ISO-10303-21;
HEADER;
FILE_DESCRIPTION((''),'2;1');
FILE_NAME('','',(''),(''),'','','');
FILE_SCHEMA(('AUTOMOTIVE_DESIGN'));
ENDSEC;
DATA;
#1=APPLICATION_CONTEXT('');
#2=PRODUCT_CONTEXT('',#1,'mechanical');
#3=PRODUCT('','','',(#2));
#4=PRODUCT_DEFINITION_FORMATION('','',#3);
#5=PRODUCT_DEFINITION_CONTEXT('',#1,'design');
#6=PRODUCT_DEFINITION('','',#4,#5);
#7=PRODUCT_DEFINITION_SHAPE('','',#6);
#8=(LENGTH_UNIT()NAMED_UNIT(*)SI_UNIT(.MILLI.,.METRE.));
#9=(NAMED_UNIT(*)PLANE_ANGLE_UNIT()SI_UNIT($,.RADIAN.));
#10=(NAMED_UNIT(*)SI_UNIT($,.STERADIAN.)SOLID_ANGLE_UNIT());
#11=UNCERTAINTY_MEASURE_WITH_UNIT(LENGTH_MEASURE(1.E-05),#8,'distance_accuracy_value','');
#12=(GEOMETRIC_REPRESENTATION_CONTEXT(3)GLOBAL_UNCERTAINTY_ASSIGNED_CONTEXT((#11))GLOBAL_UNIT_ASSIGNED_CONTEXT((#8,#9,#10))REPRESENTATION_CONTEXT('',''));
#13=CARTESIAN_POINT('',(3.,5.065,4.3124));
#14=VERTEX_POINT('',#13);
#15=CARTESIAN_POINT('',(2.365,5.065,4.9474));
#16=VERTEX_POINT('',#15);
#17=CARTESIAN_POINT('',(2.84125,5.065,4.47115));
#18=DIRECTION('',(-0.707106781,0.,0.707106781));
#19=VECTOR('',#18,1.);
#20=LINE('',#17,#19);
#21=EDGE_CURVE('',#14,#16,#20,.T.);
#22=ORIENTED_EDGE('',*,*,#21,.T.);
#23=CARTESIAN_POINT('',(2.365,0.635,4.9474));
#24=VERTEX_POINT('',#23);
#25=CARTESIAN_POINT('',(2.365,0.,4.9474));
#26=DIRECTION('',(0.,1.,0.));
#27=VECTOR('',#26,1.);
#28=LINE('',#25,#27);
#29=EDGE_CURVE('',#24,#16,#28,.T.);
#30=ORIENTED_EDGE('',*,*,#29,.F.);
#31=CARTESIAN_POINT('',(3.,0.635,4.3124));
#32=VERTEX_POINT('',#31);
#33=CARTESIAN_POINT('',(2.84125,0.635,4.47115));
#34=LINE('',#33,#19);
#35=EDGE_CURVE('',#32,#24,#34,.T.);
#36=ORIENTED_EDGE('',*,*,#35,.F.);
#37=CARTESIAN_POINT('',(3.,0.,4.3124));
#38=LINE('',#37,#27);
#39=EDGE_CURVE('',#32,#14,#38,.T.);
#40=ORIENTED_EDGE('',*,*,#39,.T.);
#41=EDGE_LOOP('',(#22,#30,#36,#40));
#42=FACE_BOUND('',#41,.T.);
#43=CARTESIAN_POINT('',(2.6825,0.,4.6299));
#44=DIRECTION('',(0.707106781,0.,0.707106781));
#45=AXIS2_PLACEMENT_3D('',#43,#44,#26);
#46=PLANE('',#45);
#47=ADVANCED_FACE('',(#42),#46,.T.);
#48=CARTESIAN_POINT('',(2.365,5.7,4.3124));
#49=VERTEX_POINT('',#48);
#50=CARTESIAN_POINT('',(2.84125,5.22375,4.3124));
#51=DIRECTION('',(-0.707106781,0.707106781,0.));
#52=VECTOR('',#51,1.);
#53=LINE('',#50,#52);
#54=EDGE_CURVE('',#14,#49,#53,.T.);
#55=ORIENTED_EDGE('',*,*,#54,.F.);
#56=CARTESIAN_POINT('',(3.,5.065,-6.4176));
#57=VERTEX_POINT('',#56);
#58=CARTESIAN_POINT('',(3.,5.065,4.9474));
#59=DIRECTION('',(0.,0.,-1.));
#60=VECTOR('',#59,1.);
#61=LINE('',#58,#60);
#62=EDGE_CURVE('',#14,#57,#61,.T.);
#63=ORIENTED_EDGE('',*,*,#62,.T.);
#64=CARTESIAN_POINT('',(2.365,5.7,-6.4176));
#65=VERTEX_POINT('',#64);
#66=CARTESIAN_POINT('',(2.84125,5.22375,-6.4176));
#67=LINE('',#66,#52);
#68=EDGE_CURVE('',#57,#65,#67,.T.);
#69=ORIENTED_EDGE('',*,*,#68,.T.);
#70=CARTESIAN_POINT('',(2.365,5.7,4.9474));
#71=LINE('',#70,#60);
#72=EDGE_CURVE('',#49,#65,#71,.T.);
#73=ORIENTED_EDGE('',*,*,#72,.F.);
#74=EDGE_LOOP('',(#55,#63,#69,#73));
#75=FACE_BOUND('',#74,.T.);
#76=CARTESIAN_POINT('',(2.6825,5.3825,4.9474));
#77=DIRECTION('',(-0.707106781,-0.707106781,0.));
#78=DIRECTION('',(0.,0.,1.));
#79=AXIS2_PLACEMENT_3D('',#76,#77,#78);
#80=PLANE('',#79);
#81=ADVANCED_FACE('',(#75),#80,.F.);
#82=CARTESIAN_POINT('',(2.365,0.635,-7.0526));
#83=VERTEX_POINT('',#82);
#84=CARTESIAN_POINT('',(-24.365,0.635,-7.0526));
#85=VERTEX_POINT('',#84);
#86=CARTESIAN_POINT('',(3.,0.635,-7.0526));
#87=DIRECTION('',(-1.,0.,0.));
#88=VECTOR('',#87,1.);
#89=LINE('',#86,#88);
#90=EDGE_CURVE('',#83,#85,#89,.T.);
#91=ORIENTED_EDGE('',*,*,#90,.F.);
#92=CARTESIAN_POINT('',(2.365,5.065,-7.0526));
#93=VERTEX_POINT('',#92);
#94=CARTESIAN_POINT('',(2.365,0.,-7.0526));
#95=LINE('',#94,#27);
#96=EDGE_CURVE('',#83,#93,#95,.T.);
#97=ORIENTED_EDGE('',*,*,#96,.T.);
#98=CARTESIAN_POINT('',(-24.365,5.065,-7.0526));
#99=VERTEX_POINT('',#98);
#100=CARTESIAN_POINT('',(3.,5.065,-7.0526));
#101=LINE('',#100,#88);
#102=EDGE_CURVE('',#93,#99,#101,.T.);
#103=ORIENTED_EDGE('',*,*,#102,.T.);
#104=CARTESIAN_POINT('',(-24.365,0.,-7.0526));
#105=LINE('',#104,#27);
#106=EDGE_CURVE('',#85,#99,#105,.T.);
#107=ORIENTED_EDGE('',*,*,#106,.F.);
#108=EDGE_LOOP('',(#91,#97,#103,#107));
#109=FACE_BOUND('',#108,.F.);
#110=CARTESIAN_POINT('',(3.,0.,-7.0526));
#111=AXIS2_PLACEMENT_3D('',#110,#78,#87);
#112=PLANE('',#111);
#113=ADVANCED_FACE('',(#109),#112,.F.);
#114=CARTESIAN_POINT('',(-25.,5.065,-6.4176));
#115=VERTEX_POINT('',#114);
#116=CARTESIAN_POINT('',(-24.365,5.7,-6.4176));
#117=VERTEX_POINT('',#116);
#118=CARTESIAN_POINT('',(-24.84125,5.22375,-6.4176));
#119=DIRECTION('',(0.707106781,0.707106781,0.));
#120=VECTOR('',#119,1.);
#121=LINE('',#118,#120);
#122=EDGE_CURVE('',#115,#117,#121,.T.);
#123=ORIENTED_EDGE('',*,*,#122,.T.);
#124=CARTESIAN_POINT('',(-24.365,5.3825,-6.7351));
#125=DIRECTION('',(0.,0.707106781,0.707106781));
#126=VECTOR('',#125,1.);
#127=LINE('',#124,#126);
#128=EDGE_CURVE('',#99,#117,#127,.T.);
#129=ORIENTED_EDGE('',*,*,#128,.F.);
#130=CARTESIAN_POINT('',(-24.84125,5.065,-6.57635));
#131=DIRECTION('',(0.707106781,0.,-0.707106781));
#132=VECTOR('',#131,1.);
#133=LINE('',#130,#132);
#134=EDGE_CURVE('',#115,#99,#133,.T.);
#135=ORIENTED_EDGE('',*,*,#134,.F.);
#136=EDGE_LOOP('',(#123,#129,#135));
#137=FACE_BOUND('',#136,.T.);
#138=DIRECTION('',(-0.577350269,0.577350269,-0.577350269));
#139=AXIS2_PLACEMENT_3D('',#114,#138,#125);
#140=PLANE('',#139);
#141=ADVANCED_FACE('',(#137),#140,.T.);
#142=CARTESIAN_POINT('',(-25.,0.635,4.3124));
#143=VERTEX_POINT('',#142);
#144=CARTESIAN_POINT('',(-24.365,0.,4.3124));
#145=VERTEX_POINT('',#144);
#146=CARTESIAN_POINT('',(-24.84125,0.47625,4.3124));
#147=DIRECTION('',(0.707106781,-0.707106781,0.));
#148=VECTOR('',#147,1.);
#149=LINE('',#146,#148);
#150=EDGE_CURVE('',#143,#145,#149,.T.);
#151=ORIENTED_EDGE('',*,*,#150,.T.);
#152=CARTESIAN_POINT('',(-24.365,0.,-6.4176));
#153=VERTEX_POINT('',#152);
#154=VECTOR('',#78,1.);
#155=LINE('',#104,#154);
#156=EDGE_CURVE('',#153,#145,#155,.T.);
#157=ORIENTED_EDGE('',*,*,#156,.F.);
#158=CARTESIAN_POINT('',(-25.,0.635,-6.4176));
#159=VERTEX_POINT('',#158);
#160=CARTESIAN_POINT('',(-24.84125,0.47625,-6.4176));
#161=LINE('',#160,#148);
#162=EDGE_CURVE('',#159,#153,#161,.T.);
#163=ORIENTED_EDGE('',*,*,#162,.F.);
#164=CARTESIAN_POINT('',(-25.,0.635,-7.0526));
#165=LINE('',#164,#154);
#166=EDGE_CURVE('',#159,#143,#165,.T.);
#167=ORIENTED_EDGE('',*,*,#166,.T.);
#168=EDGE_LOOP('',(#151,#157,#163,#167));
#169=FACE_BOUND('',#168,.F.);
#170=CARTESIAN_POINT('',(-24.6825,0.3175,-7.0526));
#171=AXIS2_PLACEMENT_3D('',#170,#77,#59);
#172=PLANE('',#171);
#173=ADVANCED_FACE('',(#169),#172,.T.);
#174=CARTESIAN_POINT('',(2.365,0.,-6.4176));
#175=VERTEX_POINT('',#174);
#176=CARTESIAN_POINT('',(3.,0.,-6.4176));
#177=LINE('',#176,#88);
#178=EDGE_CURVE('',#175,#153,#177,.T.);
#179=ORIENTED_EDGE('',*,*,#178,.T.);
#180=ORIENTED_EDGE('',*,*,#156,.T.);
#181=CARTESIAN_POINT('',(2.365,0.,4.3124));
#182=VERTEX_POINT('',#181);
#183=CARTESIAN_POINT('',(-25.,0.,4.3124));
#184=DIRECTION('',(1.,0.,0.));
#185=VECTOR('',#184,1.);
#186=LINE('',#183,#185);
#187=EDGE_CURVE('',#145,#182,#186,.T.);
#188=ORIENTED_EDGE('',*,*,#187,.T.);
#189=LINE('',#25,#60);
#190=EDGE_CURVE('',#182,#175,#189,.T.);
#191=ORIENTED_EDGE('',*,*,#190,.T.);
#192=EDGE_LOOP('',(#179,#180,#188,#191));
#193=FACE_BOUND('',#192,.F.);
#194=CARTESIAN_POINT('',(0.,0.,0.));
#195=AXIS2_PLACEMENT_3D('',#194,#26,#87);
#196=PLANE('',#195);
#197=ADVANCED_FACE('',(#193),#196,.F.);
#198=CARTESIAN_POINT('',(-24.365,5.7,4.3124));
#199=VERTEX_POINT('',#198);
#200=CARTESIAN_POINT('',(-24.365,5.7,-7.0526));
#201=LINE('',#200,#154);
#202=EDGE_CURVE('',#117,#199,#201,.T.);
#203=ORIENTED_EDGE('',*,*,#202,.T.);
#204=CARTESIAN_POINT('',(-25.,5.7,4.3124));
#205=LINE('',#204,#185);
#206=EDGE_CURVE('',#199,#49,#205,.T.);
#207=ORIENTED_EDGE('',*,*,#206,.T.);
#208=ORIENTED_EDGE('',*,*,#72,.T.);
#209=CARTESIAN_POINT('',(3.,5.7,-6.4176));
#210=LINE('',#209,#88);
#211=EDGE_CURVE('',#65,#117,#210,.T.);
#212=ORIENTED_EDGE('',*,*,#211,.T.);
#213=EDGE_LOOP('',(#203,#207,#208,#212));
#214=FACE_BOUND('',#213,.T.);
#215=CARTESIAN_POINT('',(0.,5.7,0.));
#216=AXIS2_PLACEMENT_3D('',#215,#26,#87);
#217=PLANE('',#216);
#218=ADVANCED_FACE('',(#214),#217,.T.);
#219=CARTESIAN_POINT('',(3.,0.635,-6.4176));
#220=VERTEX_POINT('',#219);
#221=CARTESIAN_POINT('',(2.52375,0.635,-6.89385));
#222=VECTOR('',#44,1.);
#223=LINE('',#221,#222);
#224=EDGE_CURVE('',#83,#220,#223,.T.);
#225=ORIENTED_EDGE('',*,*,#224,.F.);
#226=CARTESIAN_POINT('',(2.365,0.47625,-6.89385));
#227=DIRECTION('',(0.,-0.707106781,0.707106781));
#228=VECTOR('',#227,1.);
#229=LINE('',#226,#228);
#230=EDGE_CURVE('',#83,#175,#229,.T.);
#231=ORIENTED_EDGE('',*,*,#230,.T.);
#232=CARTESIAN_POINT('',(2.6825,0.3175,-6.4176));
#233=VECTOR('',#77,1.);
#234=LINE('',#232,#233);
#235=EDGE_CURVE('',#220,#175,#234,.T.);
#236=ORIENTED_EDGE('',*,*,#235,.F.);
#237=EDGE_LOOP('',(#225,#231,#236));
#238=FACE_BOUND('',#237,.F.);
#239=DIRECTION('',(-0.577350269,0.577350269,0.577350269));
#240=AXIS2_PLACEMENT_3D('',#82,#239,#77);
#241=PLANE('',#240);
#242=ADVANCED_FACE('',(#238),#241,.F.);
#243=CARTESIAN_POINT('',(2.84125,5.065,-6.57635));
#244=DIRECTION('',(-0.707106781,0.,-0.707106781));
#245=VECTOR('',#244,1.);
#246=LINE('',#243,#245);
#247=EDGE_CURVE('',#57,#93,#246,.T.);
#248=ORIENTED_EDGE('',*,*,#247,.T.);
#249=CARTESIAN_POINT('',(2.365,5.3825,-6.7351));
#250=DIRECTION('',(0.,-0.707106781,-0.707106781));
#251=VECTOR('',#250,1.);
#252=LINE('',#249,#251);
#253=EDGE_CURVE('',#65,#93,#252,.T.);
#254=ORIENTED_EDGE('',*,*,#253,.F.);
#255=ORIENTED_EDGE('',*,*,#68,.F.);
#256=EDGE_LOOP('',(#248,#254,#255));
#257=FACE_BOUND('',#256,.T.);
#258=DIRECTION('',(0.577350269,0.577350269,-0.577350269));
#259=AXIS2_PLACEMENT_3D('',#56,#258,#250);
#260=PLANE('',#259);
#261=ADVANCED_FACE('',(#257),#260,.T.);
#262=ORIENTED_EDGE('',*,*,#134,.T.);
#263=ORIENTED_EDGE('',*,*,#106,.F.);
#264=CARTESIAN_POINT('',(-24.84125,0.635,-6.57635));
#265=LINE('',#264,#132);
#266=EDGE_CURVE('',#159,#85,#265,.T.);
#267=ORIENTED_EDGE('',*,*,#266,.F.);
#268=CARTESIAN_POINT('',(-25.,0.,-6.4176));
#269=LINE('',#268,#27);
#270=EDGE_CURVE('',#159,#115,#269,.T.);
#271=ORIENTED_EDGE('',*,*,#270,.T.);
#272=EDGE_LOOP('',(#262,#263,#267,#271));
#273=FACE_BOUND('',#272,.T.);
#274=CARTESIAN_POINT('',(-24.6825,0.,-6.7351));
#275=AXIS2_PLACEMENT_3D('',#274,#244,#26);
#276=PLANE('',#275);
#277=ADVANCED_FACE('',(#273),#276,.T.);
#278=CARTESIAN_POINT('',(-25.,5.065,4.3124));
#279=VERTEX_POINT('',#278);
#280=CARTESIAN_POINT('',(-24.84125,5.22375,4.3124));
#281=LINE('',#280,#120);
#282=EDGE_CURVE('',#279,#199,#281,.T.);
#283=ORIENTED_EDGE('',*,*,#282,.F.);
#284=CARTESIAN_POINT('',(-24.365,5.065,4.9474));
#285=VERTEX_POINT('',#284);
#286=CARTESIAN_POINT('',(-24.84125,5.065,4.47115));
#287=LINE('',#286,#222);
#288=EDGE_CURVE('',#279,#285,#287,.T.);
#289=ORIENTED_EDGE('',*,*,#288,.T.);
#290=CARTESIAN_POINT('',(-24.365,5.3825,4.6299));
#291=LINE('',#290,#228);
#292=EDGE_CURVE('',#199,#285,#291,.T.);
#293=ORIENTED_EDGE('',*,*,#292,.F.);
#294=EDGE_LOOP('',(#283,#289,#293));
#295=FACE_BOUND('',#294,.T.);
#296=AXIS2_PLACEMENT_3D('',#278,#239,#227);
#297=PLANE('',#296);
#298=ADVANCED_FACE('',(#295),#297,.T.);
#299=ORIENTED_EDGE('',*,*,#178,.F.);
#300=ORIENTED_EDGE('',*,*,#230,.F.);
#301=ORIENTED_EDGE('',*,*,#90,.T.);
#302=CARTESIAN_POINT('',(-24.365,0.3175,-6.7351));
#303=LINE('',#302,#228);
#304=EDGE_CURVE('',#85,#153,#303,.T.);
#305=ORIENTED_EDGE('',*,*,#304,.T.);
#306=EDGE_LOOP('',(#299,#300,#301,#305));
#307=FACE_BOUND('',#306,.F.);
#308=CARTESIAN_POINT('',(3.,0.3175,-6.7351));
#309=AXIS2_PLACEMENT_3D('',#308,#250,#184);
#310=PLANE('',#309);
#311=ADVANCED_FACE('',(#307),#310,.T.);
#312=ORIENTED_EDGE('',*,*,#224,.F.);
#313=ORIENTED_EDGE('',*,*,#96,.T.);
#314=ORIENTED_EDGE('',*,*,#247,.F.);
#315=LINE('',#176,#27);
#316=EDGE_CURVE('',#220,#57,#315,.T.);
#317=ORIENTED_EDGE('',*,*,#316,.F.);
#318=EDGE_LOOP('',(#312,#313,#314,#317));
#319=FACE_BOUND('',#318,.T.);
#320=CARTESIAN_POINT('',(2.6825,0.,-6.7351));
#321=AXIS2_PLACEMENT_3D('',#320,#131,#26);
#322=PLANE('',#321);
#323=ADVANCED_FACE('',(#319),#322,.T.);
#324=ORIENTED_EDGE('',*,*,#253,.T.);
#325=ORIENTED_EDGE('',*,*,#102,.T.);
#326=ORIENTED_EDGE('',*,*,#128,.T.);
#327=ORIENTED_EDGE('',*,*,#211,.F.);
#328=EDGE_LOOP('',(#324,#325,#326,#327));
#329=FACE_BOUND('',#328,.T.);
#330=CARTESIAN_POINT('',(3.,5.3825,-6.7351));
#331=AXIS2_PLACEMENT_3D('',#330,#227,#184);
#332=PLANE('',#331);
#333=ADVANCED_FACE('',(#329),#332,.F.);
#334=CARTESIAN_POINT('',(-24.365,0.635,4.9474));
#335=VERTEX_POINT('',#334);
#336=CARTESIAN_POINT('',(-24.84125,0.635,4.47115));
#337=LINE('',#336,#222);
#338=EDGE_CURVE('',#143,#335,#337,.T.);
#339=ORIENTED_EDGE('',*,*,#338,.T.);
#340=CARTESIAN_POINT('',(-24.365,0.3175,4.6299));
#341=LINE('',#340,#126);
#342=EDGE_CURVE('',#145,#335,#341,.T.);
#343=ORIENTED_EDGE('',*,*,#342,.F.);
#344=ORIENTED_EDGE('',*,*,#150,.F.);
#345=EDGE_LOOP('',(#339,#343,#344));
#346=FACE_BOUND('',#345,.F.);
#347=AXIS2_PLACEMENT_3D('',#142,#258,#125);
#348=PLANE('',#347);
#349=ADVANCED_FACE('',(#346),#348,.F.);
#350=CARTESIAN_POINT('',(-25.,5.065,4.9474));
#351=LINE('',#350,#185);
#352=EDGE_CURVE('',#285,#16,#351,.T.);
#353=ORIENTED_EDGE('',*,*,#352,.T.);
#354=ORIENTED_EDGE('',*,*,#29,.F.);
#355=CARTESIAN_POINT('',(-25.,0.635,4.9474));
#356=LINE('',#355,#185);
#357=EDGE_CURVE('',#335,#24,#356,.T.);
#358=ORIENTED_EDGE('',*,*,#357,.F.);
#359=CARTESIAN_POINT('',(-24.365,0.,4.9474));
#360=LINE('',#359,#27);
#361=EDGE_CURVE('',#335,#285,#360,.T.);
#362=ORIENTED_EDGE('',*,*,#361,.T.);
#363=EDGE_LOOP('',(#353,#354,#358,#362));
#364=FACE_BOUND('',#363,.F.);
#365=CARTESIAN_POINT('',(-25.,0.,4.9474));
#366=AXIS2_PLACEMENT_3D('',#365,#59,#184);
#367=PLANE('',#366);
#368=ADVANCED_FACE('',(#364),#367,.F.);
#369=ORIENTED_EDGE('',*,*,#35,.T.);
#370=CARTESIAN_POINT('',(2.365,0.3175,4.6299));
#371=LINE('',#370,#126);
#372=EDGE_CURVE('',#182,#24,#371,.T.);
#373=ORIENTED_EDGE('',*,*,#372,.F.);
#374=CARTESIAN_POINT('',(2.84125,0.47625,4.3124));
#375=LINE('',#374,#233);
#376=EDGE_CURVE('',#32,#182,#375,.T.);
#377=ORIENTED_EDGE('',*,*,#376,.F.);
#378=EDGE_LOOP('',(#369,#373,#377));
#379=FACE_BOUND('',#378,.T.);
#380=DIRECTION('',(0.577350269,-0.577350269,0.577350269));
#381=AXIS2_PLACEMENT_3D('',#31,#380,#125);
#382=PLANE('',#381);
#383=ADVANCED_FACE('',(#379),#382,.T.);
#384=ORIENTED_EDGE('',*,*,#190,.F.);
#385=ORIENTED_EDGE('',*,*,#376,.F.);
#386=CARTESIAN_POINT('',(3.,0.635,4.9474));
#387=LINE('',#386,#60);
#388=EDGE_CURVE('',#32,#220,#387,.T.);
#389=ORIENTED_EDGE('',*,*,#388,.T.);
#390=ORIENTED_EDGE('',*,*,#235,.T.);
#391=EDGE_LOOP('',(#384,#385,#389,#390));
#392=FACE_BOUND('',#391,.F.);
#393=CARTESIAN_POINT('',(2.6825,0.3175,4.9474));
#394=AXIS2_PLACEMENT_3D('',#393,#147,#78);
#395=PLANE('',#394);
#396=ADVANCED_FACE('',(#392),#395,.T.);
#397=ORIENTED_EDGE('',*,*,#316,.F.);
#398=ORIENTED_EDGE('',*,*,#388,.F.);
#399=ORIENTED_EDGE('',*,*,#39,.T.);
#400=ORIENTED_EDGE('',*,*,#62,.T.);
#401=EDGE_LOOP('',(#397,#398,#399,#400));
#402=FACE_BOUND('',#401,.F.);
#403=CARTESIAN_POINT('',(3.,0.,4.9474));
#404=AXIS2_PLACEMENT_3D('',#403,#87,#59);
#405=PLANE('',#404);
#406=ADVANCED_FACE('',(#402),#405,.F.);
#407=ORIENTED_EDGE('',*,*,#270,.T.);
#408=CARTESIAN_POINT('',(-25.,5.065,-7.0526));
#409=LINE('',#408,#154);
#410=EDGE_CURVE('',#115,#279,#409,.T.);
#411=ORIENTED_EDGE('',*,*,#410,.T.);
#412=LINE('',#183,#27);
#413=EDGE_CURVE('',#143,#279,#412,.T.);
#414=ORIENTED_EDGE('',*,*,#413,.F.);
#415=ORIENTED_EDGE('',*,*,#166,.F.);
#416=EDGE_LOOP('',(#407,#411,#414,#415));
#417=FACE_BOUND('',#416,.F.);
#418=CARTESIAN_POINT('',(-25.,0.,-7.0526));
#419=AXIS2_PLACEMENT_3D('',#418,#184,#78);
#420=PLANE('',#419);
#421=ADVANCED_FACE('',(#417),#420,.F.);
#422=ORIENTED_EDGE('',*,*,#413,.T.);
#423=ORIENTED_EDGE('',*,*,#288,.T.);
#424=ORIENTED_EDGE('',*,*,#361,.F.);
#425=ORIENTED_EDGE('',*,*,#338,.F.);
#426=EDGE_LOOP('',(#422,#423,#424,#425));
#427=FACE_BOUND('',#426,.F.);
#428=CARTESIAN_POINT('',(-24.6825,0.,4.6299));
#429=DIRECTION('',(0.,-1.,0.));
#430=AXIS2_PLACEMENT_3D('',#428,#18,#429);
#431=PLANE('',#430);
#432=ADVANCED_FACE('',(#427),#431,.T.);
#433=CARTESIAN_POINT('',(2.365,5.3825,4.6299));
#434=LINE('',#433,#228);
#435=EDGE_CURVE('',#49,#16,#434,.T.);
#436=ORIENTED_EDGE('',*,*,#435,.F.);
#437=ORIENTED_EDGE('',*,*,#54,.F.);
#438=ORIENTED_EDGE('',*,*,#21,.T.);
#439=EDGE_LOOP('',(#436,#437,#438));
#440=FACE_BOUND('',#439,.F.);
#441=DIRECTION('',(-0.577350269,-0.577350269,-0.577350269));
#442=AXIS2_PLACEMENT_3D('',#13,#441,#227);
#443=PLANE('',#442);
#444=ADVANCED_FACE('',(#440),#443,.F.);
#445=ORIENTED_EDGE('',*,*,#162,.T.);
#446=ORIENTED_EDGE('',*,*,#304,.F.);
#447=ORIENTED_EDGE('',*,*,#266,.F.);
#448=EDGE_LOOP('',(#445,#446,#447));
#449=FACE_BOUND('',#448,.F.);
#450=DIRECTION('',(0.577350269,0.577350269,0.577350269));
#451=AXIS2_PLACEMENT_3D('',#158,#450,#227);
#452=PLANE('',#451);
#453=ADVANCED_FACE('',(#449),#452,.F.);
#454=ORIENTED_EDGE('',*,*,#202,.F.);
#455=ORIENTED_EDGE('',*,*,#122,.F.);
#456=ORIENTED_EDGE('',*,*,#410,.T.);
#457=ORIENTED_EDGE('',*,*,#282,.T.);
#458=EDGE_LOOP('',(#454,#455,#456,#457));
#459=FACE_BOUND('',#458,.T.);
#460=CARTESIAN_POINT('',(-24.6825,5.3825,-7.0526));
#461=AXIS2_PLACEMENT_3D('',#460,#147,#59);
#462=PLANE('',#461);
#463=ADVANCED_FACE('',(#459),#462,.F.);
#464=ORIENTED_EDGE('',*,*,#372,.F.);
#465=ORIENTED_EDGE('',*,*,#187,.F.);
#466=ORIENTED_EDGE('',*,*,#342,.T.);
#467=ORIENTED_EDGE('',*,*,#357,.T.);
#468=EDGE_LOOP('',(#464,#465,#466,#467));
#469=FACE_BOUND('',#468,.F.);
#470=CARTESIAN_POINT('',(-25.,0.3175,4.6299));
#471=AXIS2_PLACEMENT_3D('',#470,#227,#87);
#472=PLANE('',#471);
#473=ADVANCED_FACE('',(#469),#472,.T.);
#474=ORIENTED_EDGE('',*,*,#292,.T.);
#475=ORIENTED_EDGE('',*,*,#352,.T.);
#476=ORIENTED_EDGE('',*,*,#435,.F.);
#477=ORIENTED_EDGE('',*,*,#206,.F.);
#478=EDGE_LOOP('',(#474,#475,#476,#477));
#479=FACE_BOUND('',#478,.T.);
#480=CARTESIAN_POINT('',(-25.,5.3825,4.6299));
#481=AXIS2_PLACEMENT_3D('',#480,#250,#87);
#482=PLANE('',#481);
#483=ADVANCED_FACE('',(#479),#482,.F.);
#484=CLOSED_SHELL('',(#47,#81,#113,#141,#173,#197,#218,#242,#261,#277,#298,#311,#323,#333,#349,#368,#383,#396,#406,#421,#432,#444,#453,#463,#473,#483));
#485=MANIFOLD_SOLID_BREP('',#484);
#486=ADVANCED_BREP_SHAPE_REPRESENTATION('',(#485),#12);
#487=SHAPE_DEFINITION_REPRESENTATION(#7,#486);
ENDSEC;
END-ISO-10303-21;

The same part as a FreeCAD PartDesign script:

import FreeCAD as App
import Part
import Sketcher

V = App.Vector
Q = App.Units.Quantity


def add_polygon(sketch, points):
    """Adds a closed chain of lines whose ends are joined by coincident constraints."""
    first, n = sketch.GeometryCount, len(points)
    for a, b in zip(points, points[1:] + points[:1]):
        sketch.addGeometry(Part.LineSegment(App.Vector(*a, 0), App.Vector(*b, 0)), False)
    for i in range(n):
        sketch.addConstraint(Sketcher.Constraint("Coincident", first + i, 2, first + (i + 1) % n, 1))

doc = App.newDocument("Part")
body = doc.addObject("PartDesign::Body", "Body")

sketch1 = body.newObject("Sketcher::SketchObject", "Sketch")
sketch1.AttachmentSupport = (doc.getObject("XZ_Plane"), [""])
sketch1.MapMode = "FlatFace"
add_polygon(sketch1, [(-25, -7), (-25, 5), (3, 5), (3, -7)])
sketch1.addConstraint(Sketcher.Constraint("Vertical", 0))
sketch1.addConstraint(Sketcher.Constraint("Horizontal", 1))
sketch1.addConstraint(Sketcher.Constraint("Vertical", 2))
sketch1.addConstraint(Sketcher.Constraint("Horizontal", 3))
sketch1.addConstraint(Sketcher.Constraint("DistanceX", 1, 1, 1, 2, Q("28 mm")))
sketch1.addConstraint(Sketcher.Constraint("DistanceY", 0, 1, 0, 2, Q("12 mm")))
sketch1.addConstraint(Sketcher.Constraint("DistanceX", 0, 2, -1, 1, Q("25 mm")))
sketch1.addConstraint(Sketcher.Constraint("DistanceY", -1, 1, 0, 2, Q("4.9474 mm")))
pad1 = body.newObject("PartDesign::Pad", "Pad")
pad1.Profile = sketch1
pad1.Length = 5.7
pad1.Reversed = True
doc.recompute()

chamfer = body.newObject("PartDesign::Chamfer", "Chamfer")
chamfer.Base = (pad1, ["Edge1"])
chamfer.UseAllEdges = True
chamfer.Size = 0.635

doc.recompute()
